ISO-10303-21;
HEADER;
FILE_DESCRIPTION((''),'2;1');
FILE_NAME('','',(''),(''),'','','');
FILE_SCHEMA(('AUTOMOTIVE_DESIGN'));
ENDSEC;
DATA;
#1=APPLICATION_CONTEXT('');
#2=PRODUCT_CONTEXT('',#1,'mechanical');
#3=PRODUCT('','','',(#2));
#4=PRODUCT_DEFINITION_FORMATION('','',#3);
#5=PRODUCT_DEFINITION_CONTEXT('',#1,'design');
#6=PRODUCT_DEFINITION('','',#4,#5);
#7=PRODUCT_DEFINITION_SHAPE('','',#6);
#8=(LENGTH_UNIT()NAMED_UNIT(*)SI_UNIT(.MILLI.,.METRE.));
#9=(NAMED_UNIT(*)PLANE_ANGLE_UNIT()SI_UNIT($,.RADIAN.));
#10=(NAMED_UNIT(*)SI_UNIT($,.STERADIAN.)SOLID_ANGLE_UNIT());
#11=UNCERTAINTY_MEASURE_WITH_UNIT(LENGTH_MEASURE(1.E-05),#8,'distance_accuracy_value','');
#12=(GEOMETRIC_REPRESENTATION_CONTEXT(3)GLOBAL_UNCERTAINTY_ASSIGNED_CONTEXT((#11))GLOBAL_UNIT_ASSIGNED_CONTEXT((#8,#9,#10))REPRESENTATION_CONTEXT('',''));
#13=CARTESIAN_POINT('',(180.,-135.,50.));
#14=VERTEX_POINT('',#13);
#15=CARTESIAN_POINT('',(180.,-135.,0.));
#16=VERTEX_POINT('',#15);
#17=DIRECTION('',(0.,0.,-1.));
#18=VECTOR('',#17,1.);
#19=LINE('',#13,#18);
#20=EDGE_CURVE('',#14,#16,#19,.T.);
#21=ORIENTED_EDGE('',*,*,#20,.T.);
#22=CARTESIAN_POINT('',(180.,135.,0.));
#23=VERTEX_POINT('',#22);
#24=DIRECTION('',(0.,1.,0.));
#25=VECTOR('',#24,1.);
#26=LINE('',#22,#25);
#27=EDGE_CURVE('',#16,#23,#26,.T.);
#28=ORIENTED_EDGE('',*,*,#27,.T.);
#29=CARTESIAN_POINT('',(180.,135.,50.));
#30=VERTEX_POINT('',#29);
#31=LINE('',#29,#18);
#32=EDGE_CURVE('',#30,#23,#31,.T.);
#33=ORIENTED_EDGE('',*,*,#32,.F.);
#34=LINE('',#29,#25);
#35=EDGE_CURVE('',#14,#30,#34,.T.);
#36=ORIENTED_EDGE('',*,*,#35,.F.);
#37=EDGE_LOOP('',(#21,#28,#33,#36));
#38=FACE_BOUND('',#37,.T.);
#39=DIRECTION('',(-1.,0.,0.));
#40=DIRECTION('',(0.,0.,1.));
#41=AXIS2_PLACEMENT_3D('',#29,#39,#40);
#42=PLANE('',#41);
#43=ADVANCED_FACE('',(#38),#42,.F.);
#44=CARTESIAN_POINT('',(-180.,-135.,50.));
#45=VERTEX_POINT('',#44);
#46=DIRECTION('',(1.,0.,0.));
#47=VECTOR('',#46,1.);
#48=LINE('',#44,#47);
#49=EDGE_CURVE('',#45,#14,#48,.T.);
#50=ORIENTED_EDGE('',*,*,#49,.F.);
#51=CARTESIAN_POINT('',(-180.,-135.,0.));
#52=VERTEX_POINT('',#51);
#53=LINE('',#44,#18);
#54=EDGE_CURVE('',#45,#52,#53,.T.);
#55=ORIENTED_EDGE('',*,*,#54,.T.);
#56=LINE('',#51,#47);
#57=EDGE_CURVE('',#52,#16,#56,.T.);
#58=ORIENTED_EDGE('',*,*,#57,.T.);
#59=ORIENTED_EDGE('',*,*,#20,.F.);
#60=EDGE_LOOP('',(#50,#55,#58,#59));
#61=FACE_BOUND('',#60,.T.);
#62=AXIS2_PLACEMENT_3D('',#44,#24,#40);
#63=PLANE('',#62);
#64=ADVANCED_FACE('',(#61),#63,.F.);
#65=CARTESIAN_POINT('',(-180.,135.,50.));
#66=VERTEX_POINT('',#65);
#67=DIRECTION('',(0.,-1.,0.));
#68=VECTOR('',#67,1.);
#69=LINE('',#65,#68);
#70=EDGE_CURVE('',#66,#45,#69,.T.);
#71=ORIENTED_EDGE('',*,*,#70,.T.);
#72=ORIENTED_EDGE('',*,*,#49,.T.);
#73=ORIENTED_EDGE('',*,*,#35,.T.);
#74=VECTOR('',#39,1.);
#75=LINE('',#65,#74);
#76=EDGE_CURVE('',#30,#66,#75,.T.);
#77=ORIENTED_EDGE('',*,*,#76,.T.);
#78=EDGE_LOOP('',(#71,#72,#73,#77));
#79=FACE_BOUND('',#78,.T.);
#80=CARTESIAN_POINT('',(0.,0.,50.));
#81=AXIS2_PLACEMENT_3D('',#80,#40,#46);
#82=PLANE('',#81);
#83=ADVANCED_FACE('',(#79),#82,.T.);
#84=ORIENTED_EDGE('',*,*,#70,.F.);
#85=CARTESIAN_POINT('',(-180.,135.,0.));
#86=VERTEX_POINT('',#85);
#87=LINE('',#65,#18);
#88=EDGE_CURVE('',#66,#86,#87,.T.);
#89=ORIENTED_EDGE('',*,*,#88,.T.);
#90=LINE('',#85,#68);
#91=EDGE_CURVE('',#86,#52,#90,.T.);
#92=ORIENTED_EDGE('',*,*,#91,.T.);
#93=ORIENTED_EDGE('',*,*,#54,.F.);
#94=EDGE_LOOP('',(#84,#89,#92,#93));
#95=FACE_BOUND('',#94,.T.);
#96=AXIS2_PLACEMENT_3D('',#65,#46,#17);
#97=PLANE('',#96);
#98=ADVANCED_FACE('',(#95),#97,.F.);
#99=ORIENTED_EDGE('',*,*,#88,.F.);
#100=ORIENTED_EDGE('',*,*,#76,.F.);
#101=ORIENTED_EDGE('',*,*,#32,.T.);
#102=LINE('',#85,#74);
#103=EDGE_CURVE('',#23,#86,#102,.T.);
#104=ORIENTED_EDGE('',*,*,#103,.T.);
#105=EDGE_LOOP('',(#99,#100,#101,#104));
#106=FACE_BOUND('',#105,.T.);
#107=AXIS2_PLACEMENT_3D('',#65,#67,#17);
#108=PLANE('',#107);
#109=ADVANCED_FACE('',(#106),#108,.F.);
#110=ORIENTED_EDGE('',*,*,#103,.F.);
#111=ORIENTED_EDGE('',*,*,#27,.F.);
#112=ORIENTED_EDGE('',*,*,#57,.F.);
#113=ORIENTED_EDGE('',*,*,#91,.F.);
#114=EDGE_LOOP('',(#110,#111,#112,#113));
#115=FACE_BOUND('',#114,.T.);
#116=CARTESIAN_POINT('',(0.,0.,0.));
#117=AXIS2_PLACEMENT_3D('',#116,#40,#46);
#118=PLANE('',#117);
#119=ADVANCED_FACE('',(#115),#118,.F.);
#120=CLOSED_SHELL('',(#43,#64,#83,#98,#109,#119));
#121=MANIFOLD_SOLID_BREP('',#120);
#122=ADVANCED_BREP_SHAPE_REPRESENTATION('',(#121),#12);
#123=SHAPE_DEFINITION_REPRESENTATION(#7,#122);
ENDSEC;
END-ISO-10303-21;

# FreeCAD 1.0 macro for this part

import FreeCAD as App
import Part
import Sketcher

doc = App.newDocument("Part")
body = doc.addObject("PartDesign::Body", "Body")

sketch1 = doc.addObject("Sketcher::SketchObject", "Sketch")
body.addObject(sketch1)
sketch1.AttachmentSupport = (doc.XY_Plane, [""])
sketch1.MapMode = "FlatFace"
sketch1.addGeometry(Part.LineSegment(App.Vector(-180, 135, 0), App.Vector(-180, -135, 0)), False)
sketch1.addGeometry(Part.LineSegment(App.Vector(-180, -135, 0), App.Vector(180, -135, 0)), False)
sketch1.addGeometry(Part.LineSegment(App.Vector(180, -135, 0), App.Vector(180, 135, 0)), False)
sketch1.addGeometry(Part.LineSegment(App.Vector(180, 135, 0), App.Vector(-180, 135, 0)), False)
sketch1.addConstraint(Sketcher.Constraint("Coincident", 0, 2, 1, 1))
sketch1.addConstraint(Sketcher.Constraint("Coincident", 1, 2, 2, 1))
sketch1.addConstraint(Sketcher.Constraint("Coincident", 2, 2, 3, 1))
sketch1.addConstraint(Sketcher.Constraint("Coincident", 3, 2, 0, 1))
sketch1.addConstraint(Sketcher.Constraint("Vertical", 0))
sketch1.addConstraint(Sketcher.Constraint("Horizontal", 1))
sketch1.addConstraint(Sketcher.Constraint("Vertical", 2))
sketch1.addConstraint(Sketcher.Constraint("Horizontal", 3))
sketch1.addConstraint(Sketcher.Constraint("Symmetric", 0, 2, 2, 2, -1, 1))
sketch1.addConstraint(Sketcher.Constraint("DistanceX", 1, 1, 1, 2, 360.0))
sketch1.addConstraint(Sketcher.Constraint("DistanceY", 0, 2, 0, 1, 270.0))
pad1 = doc.addObject("PartDesign::Pad", "Pad")
body.addObject(pad1)
pad1.Profile = sketch1
pad1.Length = 50

doc.recompute()
